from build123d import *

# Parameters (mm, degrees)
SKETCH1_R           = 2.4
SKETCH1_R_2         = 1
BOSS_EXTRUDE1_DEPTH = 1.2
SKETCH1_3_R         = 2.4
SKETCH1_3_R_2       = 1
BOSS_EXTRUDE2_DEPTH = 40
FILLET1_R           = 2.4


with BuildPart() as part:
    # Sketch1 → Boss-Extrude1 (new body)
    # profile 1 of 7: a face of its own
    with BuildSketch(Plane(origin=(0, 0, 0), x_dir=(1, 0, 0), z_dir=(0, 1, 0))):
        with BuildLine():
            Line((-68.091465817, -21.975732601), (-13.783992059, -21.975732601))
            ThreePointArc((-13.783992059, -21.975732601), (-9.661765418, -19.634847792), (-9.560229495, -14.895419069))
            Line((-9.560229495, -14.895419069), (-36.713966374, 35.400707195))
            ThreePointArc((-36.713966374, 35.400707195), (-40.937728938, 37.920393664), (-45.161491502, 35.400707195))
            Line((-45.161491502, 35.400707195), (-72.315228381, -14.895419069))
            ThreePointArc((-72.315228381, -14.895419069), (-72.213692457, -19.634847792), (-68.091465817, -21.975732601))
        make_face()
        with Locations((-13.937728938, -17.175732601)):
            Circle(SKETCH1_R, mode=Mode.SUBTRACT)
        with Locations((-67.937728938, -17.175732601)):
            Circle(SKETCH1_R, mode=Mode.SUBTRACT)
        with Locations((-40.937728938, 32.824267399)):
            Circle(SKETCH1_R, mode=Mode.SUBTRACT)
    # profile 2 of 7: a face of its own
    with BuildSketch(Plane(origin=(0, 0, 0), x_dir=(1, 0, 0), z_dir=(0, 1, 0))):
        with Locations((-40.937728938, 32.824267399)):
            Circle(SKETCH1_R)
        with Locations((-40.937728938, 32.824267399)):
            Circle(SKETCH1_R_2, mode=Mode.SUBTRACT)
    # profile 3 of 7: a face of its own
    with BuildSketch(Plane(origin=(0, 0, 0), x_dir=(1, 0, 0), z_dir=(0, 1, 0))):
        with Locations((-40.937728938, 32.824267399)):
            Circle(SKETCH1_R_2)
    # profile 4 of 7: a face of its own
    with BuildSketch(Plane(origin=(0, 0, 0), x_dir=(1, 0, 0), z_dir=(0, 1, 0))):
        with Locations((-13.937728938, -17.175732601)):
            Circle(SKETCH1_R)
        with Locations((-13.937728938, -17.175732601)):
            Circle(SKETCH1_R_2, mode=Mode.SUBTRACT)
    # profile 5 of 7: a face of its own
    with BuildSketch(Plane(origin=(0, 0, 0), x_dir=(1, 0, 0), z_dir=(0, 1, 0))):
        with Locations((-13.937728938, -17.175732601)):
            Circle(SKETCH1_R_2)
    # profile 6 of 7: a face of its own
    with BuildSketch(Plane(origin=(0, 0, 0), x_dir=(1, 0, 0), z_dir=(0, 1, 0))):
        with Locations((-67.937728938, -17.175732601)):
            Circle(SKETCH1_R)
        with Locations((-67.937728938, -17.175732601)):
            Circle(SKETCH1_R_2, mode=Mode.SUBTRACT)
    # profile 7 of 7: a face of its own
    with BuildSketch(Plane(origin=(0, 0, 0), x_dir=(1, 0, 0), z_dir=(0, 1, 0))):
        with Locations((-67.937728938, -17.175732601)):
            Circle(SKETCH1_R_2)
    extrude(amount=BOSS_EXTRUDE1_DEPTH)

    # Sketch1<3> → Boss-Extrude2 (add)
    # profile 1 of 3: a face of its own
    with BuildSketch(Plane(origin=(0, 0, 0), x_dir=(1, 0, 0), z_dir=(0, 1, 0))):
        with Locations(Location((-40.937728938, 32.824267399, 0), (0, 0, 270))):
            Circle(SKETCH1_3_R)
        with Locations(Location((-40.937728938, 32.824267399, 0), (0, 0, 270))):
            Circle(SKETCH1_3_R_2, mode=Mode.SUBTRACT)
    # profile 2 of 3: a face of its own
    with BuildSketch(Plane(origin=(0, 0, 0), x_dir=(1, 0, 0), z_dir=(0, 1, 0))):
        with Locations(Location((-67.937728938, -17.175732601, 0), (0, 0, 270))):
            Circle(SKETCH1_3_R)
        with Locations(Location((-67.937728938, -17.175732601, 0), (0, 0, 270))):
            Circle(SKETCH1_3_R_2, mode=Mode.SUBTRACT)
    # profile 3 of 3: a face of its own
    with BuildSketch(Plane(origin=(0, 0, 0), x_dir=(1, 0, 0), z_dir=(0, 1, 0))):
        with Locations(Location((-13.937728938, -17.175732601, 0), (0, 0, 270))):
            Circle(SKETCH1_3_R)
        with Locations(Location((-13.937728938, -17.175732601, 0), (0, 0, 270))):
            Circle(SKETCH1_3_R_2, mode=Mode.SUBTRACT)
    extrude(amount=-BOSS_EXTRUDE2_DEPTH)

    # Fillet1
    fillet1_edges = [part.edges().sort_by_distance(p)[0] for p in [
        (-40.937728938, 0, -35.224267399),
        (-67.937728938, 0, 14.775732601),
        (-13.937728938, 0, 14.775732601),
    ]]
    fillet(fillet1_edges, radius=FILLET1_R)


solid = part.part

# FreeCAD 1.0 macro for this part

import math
import FreeCAD as App
import Part
import Sketcher

V = App.Vector
Q = App.Units.Quantity


def edges_at(feature, points):
    """Names of the edges that pass closest to the given points."""
    edges = feature.Shape.Edges
    near = lambda p: min(range(len(edges)), key=lambda i: edges[i].distToShape(Part.Vertex(*p))[0])
    return sorted({f"Edge{near(p) + 1}" for p in points})

doc = App.newDocument("Part")
body = doc.addObject("PartDesign::Body", "Body")

sketch1 = doc.addObject("Sketcher::SketchObject", "Sketch")
body.addObject(sketch1)
sketch1.AttachmentSupport = (doc.XZ_Plane, [""])
sketch1.MapMode = "FlatFace"
sketch1.addGeometry(Part.LineSegment(V(-68.1, 22, 0), V(-13.8, 22, 0)), False)
sketch1.addGeometry(Part.ArcOfCircle(Part.Circle(V(-13.8, 17.2, 0), V(0, 0, 1), 4.8), math.radians(-28), math.radians(90)), False)
sketch1.addGeometry(Part.LineSegment(V(-9.6, 14.9, 0), V(-36.7, -35.4, 0)), False)
sketch1.addGeometry(Part.ArcOfCircle(Part.Circle(V(-40.9, -33.1, 0), V(0, 0, 1), 4.8), math.radians(-152), math.radians(-28)), False)
sketch1.addGeometry(Part.LineSegment(V(-45.2, -35.4, 0), V(-72.3, 14.9, 0)), False)
sketch1.addGeometry(Part.ArcOfCircle(Part.Circle(V(-68.1, 17.2, 0), V(0, 0, 1), 4.8), math.radians(90), math.radians(208)), False)
sketch1.addConstraint(Sketcher.Constraint("Tangent", 0, 2, 1, 2))
sketch1.addConstraint(Sketcher.Constraint("Tangent", 1, 1, 2, 1))
sketch1.addConstraint(Sketcher.Constraint("Tangent", 2, 2, 3, 2))
sketch1.addConstraint(Sketcher.Constraint("Tangent", 3, 1, 4, 1))
sketch1.addConstraint(Sketcher.Constraint("Tangent", 4, 2, 5, 2))
sketch1.addConstraint(Sketcher.Constraint("Tangent", 5, 1, 0, 1))
sketch1.addConstraint(Sketcher.Constraint("Horizontal", 0))
sketch1.addConstraint(Sketcher.Constraint("Equal", 1, 3))
sketch1.addConstraint(Sketcher.Constraint("Equal", 3, 5))
sketch1.addConstraint(Sketcher.Constraint("Horizontal", 2, 2, 3, 1))
sketch1.addConstraint(Sketcher.Constraint("Radius", 1, Q("4.8 mm")))
sketch1.addConstraint(Sketcher.Constraint("Distance", 2, Q("57.157902 mm")))
sketch1.addConstraint(Sketcher.Constraint("DistanceX", 3, 3, 1, 1, Q("31.377499 mm")))
sketch1.addConstraint(Sketcher.Constraint("DistanceX", 3, 3, -1, 1, Q("40.937729 mm")))
sketch1.addConstraint(Sketcher.Constraint("DistanceY", -1, 1, 1, 1, Q("14.895419 mm")))
pad1 = doc.addObject("PartDesign::Pad", "Pad")
body.addObject(pad1)
pad1.Profile = sketch1
pad1.Length = 1.2
pad1.Reversed = True

sketch2 = doc.addObject("Sketcher::SketchObject", "Sketch001")
body.addObject(sketch2)
sketch2.AttachmentSupport = (doc.XZ_Plane, [""])
sketch2.MapMode = "FlatFace"
sketch2.addGeometry(Part.Circle(V(-40.9, -32.8, 0), V(0, 0, 1), 2.4), False)
sketch2.addGeometry(Part.Circle(V(-40.9, -32.8, 0), V(0, 0, 1), 1), False)
sketch2.addGeometry(Part.Circle(V(-67.9, 17.2, 0), V(0, 0, 1), 2.4), False)
sketch2.addGeometry(Part.Circle(V(-67.9, 17.2, 0), V(0, 0, 1), 1), False)
sketch2.addGeometry(Part.Circle(V(-13.9, 17.2, 0), V(0, 0, 1), 2.4), False)
sketch2.addGeometry(Part.Circle(V(-13.9, 17.2, 0), V(0, 0, 1), 1), False)
sketch2.addConstraint(Sketcher.Constraint("Coincident", 1, 3, 0, 3))
sketch2.addConstraint(Sketcher.Constraint("Coincident", 3, 3, 2, 3))
sketch2.addConstraint(Sketcher.Constraint("Coincident", 5, 3, 4, 3))
sketch2.addConstraint(Sketcher.Constraint("Equal", 0, 2))
sketch2.addConstraint(Sketcher.Constraint("Equal", 1, 3))
sketch2.addConstraint(Sketcher.Constraint("Equal", 2, 4))
sketch2.addConstraint(Sketcher.Constraint("Equal", 3, 5))
sketch2.addConstraint(Sketcher.Constraint("Horizontal", 3, 3, 4, 3))
sketch2.addConstraint(Sketcher.Constraint("Diameter", 1, Q("2 mm")))
sketch2.addConstraint(Sketcher.Constraint("Diameter", 0, Q("4.8 mm")))
sketch2.addConstraint(Sketcher.Constraint("DistanceX", 2, 3, 0, 3, Q("27 mm")))
sketch2.addConstraint(Sketcher.Constraint("DistanceY", 0, 3, 2, 3, Q("50 mm")))
sketch2.addConstraint(Sketcher.Constraint("DistanceX", 2, 3, 4, 3, Q("54 mm")))
sketch2.addConstraint(Sketcher.Constraint("DistanceX", 0, 3, -1, 1, Q("40.937729 mm")))
sketch2.addConstraint(Sketcher.Constraint("DistanceY", 0, 3, -1, 1, Q("32.824267 mm")))
pad2 = doc.addObject("PartDesign::Pad", "Pad001")
body.addObject(pad2)
pad2.Profile = sketch2
pad2.Length = 40
doc.recompute()

fillet = doc.addObject("PartDesign::Fillet", "Fillet")
body.addObject(fillet)
fillet.Base = (pad2, edges_at(pad2, [(-40.938, 0, -35.224), (-67.938, 0, 14.776), (-13.938, 0, 14.776)]))
fillet.Radius = 2.4

doc.recompute()
